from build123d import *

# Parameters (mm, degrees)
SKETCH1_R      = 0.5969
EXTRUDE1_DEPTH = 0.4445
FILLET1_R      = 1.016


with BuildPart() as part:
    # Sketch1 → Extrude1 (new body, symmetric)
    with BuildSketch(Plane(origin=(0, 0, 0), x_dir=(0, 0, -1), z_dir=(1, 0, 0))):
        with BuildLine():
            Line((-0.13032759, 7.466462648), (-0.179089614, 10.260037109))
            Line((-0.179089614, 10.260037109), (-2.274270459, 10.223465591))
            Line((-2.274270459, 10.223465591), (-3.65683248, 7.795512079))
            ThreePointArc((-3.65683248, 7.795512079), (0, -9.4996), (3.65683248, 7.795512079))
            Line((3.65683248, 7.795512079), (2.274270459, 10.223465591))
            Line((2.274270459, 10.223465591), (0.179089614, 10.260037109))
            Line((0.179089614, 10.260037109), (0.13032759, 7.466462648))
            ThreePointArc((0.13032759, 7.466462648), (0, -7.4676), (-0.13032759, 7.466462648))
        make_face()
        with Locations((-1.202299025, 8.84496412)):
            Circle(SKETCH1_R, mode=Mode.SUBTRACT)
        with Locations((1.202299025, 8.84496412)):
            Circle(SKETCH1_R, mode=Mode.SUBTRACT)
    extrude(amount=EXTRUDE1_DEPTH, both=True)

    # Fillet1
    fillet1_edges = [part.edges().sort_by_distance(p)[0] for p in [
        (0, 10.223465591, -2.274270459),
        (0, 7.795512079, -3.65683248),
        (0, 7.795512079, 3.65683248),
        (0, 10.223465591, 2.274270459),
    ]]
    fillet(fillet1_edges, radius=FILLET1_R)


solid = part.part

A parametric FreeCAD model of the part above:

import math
import FreeCAD as App
import Part
import Sketcher

V = App.Vector
Q = App.Units.Quantity


def edges_at(feature, points):
    """Names of the edges that pass closest to the given points."""
    edges = feature.Shape.Edges
    near = lambda p: min(range(len(edges)), key=lambda i: edges[i].distToShape(Part.Vertex(*p))[0])
    return sorted({f"Edge{near(p) + 1}" for p in points})

doc = App.newDocument("Part")
params = doc.addObject("Spreadsheet::Sheet", "Params")
for row, (alias, value) in enumerate([
    ("sketch1_diameter", "0.047 in"),
    ("sketch1_radius", "0.294 in"),
    ("sketch1_length", "0.11 in"),
    ("pad1_length", "0.035 in"),
    ("fillet_radius", "0.04 in"),
], start=1):
    params.set(f"A{row}", alias)
    params.set(f"B{row}", "=" + value)
    params.setAlias(f"B{row}", alias)

body = doc.addObject("PartDesign::Body", "Body")

# Sketch on YZ plane
sketch1 = body.newObject("Sketcher::SketchObject", "Sketch")
sketch1.AttachmentSupport = (doc.getObject("YZ_Plane"), [""])
sketch1.MapMode = "FlatFace"
sketch1.addGeometry([
    Part.LineSegment(V(7.47, 0.13, 0), V(10.26, 0.18, 0)),  # 0
    Part.LineSegment(V(10.26, 0.18, 0), V(10.22, 2.27, 0)),  # 1
    Part.LineSegment(V(10.22, 2.27, 0), V(7.8, 3.66, 0)),  # 2
    Part.ArcOfCircle(Part.Circle(V(-0.47, 0, 0), V(0, 0, 1), 9.03), math.radians(24), math.radians(336)),  # 3
    Part.LineSegment(V(7.8, -3.66, 0), V(10.22, -2.27, 0)),  # 4
    Part.LineSegment(V(10.22, -2.27, 0), V(10.26, -0.18, 0)),  # 5
    Part.LineSegment(V(10.26, -0.18, 0), V(7.47, -0.13, 0)),  # 6
    Part.ArcOfCircle(Part.Circle(V(0, 0, 0), V(0, 0, 1), 7.47), math.radians(1), math.radians(359)),  # 7
    Part.Circle(V(8.84, 1.2, 0), V(0, 0, 1), 0.6),  # 8
    Part.Circle(V(8.84, -1.2, 0), V(0, 0, 1), 0.6),  # 9
], False)
sketch1.addConstraint([
    Sketcher.Constraint("Coincident", 0, 2, 1, 1),
    Sketcher.Constraint("Coincident", 1, 2, 2, 1),
    Sketcher.Constraint("Coincident", 2, 2, 3, 1),
    Sketcher.Constraint("Coincident", 3, 2, 4, 1),
    Sketcher.Constraint("Coincident", 4, 2, 5, 1),
    Sketcher.Constraint("Coincident", 5, 2, 6, 1),
    Sketcher.Constraint("Coincident", 6, 2, 7, 2),
    Sketcher.Constraint("Coincident", 7, 1, 0, 1),
    Sketcher.Constraint("Coincident", 7, 3, -1, 1),
    Sketcher.Constraint("Equal", 8, 9),
    Sketcher.Constraint("Symmetric", 8, 3, 9, 3, -1),
    Sketcher.Constraint("Symmetric", 2, 2, 3, 2, -1),
    Sketcher.Constraint("Symmetric", 1, 2, 4, 2, -1),
    Sketcher.Constraint("Symmetric", 0, 2, 5, 2, -1),
    Sketcher.Constraint("Perpendicular", 0, 1),
    Sketcher.Constraint("Perpendicular", 5, 6),
    Sketcher.Constraint("Equal", 0, 2),
    Sketcher.Constraint("Diameter", 8, Q("0.047 in")),
    Sketcher.Constraint("Angle", 0, Q("1 deg")),
    Sketcher.Constraint("Radius", 7, Q("0.294 in")),
    Sketcher.Constraint("Distance", 0, Q("0.11 in")),
    Sketcher.Constraint("Radius", 3, 9.034152),
    Sketcher.Constraint("Distance", 1, Q("0.0825 in")),
    Sketcher.Constraint("DistanceY", -1, 1, 8, 3, 1.202299),
    Sketcher.Constraint("DistanceX", 8, 3, 1, 2, 1.378501),
    Sketcher.Constraint("DistanceX", 3, 3, -1, 1, 0.465448),
    Sketcher.Constraint("DistanceY", -1, 1, 0, 2, 0.17909),
])
sketch1.setExpression("Constraints[17]", "Params.sketch1_diameter")
sketch1.setExpression("Constraints[19]", "Params.sketch1_radius")
sketch1.setExpression("Constraints[20]", "Params.sketch1_length")
pad1 = body.newObject("PartDesign::Pad", "Pad")
pad1.Profile = sketch1
pad1.setExpression("Length", "Params.pad1_length")
pad1.Midplane = True
doc.recompute()

fillet = body.newObject("PartDesign::Fillet", "Fillet")
fillet.Base = (pad1, edges_at(pad1, [
    (0, 10.223, -2.274),
    (0, 7.796, -3.657),
    (0, 7.796, 3.657),
    (0, 10.223, 2.274),
]))
fillet.setExpression("Radius", "Params.fillet_radius")

doc.recompute()
